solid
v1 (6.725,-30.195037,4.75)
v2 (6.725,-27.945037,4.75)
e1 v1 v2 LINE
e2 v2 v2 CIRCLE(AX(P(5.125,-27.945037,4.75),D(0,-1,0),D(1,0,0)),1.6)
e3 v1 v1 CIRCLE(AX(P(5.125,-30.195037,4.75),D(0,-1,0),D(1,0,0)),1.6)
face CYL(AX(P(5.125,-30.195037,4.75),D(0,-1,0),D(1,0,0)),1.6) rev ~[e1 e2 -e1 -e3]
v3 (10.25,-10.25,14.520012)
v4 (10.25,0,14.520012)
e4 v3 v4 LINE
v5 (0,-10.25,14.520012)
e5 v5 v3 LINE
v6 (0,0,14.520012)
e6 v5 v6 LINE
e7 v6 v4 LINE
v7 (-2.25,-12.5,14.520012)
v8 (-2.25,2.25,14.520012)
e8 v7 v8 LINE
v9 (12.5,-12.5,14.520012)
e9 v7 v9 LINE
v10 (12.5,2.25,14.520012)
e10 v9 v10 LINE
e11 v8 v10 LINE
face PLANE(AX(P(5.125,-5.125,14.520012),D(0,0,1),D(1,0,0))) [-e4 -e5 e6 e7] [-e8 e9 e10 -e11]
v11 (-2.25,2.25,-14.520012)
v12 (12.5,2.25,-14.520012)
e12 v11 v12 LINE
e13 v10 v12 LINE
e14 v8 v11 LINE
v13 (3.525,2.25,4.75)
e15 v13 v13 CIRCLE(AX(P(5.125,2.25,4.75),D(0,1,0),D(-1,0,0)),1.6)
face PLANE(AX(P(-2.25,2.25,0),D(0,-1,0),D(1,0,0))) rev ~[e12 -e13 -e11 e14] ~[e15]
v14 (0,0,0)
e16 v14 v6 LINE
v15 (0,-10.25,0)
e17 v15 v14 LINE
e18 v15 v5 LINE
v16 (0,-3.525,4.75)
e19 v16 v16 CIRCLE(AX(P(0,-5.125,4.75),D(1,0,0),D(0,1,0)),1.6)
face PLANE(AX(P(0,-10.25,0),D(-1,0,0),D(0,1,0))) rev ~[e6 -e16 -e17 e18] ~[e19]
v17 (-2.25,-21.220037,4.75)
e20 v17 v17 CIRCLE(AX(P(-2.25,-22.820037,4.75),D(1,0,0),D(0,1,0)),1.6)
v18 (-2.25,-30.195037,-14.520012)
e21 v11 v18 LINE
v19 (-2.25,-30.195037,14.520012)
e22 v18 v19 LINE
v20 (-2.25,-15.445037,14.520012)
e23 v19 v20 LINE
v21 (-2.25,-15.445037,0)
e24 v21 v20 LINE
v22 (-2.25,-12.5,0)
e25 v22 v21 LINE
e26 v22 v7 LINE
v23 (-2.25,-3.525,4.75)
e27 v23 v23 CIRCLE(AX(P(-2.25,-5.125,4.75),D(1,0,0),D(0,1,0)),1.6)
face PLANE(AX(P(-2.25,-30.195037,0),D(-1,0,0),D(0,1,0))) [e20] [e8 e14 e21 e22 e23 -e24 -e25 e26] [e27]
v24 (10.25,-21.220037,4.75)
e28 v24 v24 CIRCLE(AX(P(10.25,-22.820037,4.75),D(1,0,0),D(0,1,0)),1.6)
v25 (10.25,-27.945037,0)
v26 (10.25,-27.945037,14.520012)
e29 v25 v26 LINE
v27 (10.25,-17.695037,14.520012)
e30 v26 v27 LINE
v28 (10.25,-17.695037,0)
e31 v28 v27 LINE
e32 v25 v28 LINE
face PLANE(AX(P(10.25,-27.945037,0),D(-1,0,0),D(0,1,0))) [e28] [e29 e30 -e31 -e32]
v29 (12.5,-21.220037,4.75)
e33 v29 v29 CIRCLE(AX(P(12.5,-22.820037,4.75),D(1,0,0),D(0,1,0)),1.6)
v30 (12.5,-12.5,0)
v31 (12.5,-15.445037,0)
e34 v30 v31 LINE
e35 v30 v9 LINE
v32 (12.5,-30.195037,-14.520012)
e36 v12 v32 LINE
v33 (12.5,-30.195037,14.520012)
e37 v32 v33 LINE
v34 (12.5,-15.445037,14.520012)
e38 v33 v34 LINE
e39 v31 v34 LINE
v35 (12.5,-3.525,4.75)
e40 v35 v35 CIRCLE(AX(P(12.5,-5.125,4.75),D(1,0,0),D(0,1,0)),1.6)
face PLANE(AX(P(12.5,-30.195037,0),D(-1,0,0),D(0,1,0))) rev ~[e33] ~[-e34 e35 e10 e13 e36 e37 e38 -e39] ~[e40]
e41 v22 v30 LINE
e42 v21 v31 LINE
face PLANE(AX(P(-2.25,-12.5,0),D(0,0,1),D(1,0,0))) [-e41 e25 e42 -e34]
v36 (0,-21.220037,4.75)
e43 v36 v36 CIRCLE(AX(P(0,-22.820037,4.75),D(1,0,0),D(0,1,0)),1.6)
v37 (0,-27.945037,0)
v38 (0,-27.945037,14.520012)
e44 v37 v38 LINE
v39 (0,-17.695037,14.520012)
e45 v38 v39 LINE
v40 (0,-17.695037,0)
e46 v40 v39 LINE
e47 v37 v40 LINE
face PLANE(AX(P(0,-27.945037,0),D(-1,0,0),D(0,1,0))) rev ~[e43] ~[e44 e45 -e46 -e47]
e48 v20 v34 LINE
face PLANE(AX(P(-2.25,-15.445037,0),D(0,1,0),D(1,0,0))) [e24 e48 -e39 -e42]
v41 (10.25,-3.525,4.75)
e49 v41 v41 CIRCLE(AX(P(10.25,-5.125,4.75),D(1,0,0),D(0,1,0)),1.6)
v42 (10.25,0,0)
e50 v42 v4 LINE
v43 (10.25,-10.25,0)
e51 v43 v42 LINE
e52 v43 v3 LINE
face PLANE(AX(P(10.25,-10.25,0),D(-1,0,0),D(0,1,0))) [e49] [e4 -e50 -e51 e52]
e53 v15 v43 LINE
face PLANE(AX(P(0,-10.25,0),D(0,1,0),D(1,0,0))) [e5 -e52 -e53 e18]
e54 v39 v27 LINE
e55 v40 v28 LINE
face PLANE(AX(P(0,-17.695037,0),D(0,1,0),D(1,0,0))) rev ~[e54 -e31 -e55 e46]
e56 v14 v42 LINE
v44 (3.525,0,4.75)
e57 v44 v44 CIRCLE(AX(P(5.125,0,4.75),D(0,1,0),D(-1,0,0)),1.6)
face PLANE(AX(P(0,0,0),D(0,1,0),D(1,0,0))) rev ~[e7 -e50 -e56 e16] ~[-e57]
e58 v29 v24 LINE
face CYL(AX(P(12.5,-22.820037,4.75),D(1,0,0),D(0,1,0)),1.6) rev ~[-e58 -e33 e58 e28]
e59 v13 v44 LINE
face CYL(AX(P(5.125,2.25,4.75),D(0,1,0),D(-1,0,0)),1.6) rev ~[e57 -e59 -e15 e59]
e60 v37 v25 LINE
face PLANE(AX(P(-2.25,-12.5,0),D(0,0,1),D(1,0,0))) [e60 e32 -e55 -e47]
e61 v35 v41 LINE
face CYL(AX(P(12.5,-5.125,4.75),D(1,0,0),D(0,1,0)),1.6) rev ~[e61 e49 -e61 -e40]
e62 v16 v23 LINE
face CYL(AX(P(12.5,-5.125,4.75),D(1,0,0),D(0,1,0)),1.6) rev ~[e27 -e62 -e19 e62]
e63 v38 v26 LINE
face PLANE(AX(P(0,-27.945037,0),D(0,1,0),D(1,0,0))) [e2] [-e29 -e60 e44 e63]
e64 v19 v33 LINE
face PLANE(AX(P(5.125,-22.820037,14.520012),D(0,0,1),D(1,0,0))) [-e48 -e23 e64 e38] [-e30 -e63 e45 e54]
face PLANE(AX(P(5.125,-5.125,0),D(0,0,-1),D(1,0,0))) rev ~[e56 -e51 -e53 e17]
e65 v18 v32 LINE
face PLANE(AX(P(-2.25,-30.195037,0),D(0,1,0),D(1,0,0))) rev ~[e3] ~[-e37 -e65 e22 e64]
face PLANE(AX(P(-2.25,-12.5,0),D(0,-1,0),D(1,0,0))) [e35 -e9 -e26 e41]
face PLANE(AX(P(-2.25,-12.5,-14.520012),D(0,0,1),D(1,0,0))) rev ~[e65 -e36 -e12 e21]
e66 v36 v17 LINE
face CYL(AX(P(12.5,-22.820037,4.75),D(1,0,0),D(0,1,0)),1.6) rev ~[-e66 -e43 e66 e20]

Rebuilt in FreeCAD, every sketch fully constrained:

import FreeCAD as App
import Part
import Sketcher

V = App.Vector
Q = App.Units.Quantity


def add_polygon(sketch, points):
    """Adds a closed chain of lines whose ends are joined by coincident constraints."""
    first, n = sketch.GeometryCount, len(points)
    for a, b in zip(points, points[1:] + points[:1]):
        sketch.addGeometry(Part.LineSegment(App.Vector(*a, 0), App.Vector(*b, 0)), False)
    for i in range(n):
        sketch.addConstraint(Sketcher.Constraint("Coincident", first + i, 2, first + (i + 1) % n, 1))

doc = App.newDocument("Part")
body = doc.addObject("PartDesign::Body", "Body")

sketch1 = body.newObject("Sketcher::SketchObject", "Sketch")
sketch1.AttachmentSupport = (doc.getObject("XY_Plane"), [""])
sketch1.MapMode = "FlatFace"
add_polygon(sketch1, [(-2, 2), (-2, -12), (12, -12), (12, 2)])
add_polygon(sketch1, [(10, -10), (0, -10), (0, 0), (10, 0)])
sketch1.addConstraint(Sketcher.Constraint("Vertical", 0))
sketch1.addConstraint(Sketcher.Constraint("Horizontal", 1))
sketch1.addConstraint(Sketcher.Constraint("Vertical", 2))
sketch1.addConstraint(Sketcher.Constraint("Horizontal", 3))
sketch1.addConstraint(Sketcher.Constraint("Horizontal", 4))
sketch1.addConstraint(Sketcher.Constraint("Vertical", 5))
sketch1.addConstraint(Sketcher.Constraint("Horizontal", 6))
sketch1.addConstraint(Sketcher.Constraint("Vertical", 7))
sketch1.addConstraint(Sketcher.Constraint("Coincident", 5, 2, -1, 1))
sketch1.addConstraint(Sketcher.Constraint("Equal", 3, 0))
sketch1.addConstraint(Sketcher.Constraint("Equal", 6, 5))
sketch1.addConstraint(Sketcher.Constraint("DistanceX", 1, 1, 1, 2, Q("14.75 mm")))
sketch1.addConstraint(Sketcher.Constraint("DistanceX", 4, 2, 4, 1, Q("10.25 mm")))
sketch1.addConstraint(Sketcher.Constraint("DistanceY", 0, 2, -1, 1, Q("12.5 mm")))
sketch1.addConstraint(Sketcher.Constraint("DistanceX", -1, 1, 1, 2, Q("12.5 mm")))
pad1 = body.newObject("PartDesign::Pad", "Pad")
pad1.Profile = sketch1
pad1.Length = 14.520012

sketch2 = body.newObject("Sketcher::SketchObject", "Sketch001")
sketch2.AttachmentSupport = (doc.getObject("XY_Plane"), [""])
sketch2.MapMode = "FlatFace"
add_polygon(sketch2, [(-2, -12), (-2, 2), (12, 2), (12, -12)])
sketch2.addConstraint(Sketcher.Constraint("Vertical", 0))
sketch2.addConstraint(Sketcher.Constraint("Horizontal", 1))
sketch2.addConstraint(Sketcher.Constraint("Vertical", 2))
sketch2.addConstraint(Sketcher.Constraint("Horizontal", 3))
sketch2.addConstraint(Sketcher.Constraint("Equal", 3, 0))
sketch2.addConstraint(Sketcher.Constraint("DistanceX", 1, 1, 1, 2, Q("14.75 mm")))
sketch2.addConstraint(Sketcher.Constraint("DistanceX", -1, 1, 1, 2, Q("12.5 mm")))
sketch2.addConstraint(Sketcher.Constraint("DistanceY", 2, 2, -1, 1, Q("12.5 mm")))
pad2 = body.newObject("PartDesign::Pad", "Pad001")
pad2.Profile = sketch2
pad2.Length = 14.520012
pad2.Reversed = True

sketch3 = body.newObject("Sketcher::SketchObject", "Sketch002")
sketch3.AttachmentSupport = (doc.getObject("XZ_Plane"), [""])
sketch3.MapMode = "FlatFace"
sketch3.AttachmentOffset = App.Placement(V(0, 0, 12.5), App.Rotation())
add_polygon(sketch3, [(-2, 0), (-2, -15), (12, -15), (12, 0)])
sketch3.addConstraint(Sketcher.Constraint("Vertical", 0))
sketch3.addConstraint(Sketcher.Constraint("Horizontal", 1))
sketch3.addConstraint(Sketcher.Constraint("Vertical", 2))
sketch3.addConstraint(Sketcher.Constraint("Horizontal", 3))
sketch3.addConstraint(Sketcher.Constraint("PointOnObject", 2, 2, -1))
sketch3.addConstraint(Sketcher.Constraint("DistanceX", 1, 1, 1, 2, Q("14.75 mm")))
sketch3.addConstraint(Sketcher.Constraint("DistanceX", -1, 1, 1, 2, Q("12.5 mm")))
sketch3.addConstraint(Sketcher.Constraint("DistanceY", 0, 2, 0, 1, Q("14.520012 mm")))
pad3 = body.newObject("PartDesign::Pad", "Pad002")
pad3.Profile = sketch3
pad3.Length = 17.695037

sketch4 = body.newObject("Sketcher::SketchObject", "Sketch003")
sketch4.AttachmentSupport = (doc.getObject("XY_Plane"), [""])
sketch4.MapMode = "FlatFace"
add_polygon(sketch4, [(-2, -15), (-2, -30), (12, -30), (12, -15)])
add_polygon(sketch4, [(10, -28), (0, -28), (0, -18), (10, -18)])
sketch4.addConstraint(Sketcher.Constraint("Vertical", 0))
sketch4.addConstraint(Sketcher.Constraint("Horizontal", 1))
sketch4.addConstraint(Sketcher.Constraint("Vertical", 2))
sketch4.addConstraint(Sketcher.Constraint("Horizontal", 3))
sketch4.addConstraint(Sketcher.Constraint("Horizontal", 4))
sketch4.addConstraint(Sketcher.Constraint("Vertical", 5))
sketch4.addConstraint(Sketcher.Constraint("Horizontal", 6))
sketch4.addConstraint(Sketcher.Constraint("Vertical", 7))
sketch4.addConstraint(Sketcher.Constraint("PointOnObject", 4, 2, -2))
sketch4.addConstraint(Sketcher.Constraint("Equal", 3, 0))
sketch4.addConstraint(Sketcher.Constraint("Equal", 6, 5))
sketch4.addConstraint(Sketcher.Constraint("DistanceX", 1, 1, 1, 2, Q("14.75 mm")))
sketch4.addConstraint(Sketcher.Constraint("DistanceX", 4, 2, 4, 1, Q("10.25 mm")))
sketch4.addConstraint(Sketcher.Constraint("DistanceX", -1, 1, 1, 2, Q("12.5 mm")))
sketch4.addConstraint(Sketcher.Constraint("DistanceY", 4, 2, 3, 2, Q("12.5 mm")))
sketch4.addConstraint(Sketcher.Constraint("DistanceY", 0, 2, -1, 1, Q("30.195037 mm")))
pad4 = body.newObject("PartDesign::Pad", "Pad003")
pad4.Profile = sketch4
pad4.Length = 14.520012

sketch5 = body.newObject("Sketcher::SketchObject", "Sketch004")
sketch5.AttachmentSupport = (doc.getObject("YZ_Plane"), [""])
sketch5.MapMode = "FlatFace"
sketch5.AttachmentOffset = App.Placement(V(0, 0, 12.5), App.Rotation())
sketch5.addGeometry(Part.Circle(V(-22.8, 4.8, 0), V(0, 0, 1), 1.6), False)
sketch5.addGeometry(Part.Circle(V(-5.1, 4.8, 0), V(0, 0, 1), 1.6), False)
sketch5.addConstraint(Sketcher.Constraint("Equal", 0, 1))
sketch5.addConstraint(Sketcher.Constraint("Horizontal", 0, 3, 1, 3))
sketch5.addConstraint(Sketcher.Constraint("Diameter", 0, Q("3.2 mm")))
sketch5.addConstraint(Sketcher.Constraint("DistanceY", -1, 1, 0, 3, Q("4.75 mm")))
sketch5.addConstraint(Sketcher.Constraint("DistanceX", 1, 3, -1, 1, Q("5.125 mm")))
sketch5.addConstraint(Sketcher.Constraint("DistanceX", 0, 3, -1, 1, Q("22.820037 mm")))
pocket1 = body.newObject("PartDesign::Pocket", "Pocket")
pocket1.Profile = sketch5
pocket1.Length = 25.4

sketch6 = body.newObject("Sketcher::SketchObject", "Sketch005")
sketch6.AttachmentSupport = (doc.getObject("XZ_Plane"), [""])
sketch6.MapMode = "FlatFace"
sketch6.AttachmentOffset = App.Placement(V(0, 0, 30.195037), App.Rotation())
sketch6.addGeometry(Part.Circle(V(5.1, 4.8, 0), V(0, 0, 1), 1.6), False)
sketch6.addConstraint(Sketcher.Constraint("Diameter", 0, Q("3.2 mm")))
sketch6.addConstraint(Sketcher.Constraint("DistanceY", -1, 1, 0, 3, Q("4.75 mm")))
sketch6.addConstraint(Sketcher.Constraint("DistanceX", -1, 1, 0, 3, Q("5.125 mm")))
pocket2 = body.newObject("PartDesign::Pocket", "Pocket001")
pocket2.Profile = sketch6
pocket2.Length = 10

sketch7 = body.newObject("Sketcher::SketchObject", "Sketch006")
sketch7.AttachmentSupport = (doc.getObject("XZ_Plane"), [""])
sketch7.MapMode = "FlatFace"
sketch7.AttachmentOffset = App.Placement(V(0, 0, -2.25), App.Rotation())
sketch7.addGeometry(Part.Circle(V(5.1, 4.8, 0), V(0, 0, 1), 1.6), False)
sketch7.addConstraint(Sketcher.Constraint("Diameter", 0, Q("3.2 mm")))
sketch7.addConstraint(Sketcher.Constraint("DistanceY", -1, 1, 0, 3, Q("4.75 mm")))
sketch7.addConstraint(Sketcher.Constraint("DistanceX", -1, 1, 0, 3, Q("5.125 mm")))
pocket3 = body.newObject("PartDesign::Pocket", "Pocket002")
pocket3.Profile = sketch7
pocket3.Length = 10
pocket3.Reversed = True

doc.recompute()
